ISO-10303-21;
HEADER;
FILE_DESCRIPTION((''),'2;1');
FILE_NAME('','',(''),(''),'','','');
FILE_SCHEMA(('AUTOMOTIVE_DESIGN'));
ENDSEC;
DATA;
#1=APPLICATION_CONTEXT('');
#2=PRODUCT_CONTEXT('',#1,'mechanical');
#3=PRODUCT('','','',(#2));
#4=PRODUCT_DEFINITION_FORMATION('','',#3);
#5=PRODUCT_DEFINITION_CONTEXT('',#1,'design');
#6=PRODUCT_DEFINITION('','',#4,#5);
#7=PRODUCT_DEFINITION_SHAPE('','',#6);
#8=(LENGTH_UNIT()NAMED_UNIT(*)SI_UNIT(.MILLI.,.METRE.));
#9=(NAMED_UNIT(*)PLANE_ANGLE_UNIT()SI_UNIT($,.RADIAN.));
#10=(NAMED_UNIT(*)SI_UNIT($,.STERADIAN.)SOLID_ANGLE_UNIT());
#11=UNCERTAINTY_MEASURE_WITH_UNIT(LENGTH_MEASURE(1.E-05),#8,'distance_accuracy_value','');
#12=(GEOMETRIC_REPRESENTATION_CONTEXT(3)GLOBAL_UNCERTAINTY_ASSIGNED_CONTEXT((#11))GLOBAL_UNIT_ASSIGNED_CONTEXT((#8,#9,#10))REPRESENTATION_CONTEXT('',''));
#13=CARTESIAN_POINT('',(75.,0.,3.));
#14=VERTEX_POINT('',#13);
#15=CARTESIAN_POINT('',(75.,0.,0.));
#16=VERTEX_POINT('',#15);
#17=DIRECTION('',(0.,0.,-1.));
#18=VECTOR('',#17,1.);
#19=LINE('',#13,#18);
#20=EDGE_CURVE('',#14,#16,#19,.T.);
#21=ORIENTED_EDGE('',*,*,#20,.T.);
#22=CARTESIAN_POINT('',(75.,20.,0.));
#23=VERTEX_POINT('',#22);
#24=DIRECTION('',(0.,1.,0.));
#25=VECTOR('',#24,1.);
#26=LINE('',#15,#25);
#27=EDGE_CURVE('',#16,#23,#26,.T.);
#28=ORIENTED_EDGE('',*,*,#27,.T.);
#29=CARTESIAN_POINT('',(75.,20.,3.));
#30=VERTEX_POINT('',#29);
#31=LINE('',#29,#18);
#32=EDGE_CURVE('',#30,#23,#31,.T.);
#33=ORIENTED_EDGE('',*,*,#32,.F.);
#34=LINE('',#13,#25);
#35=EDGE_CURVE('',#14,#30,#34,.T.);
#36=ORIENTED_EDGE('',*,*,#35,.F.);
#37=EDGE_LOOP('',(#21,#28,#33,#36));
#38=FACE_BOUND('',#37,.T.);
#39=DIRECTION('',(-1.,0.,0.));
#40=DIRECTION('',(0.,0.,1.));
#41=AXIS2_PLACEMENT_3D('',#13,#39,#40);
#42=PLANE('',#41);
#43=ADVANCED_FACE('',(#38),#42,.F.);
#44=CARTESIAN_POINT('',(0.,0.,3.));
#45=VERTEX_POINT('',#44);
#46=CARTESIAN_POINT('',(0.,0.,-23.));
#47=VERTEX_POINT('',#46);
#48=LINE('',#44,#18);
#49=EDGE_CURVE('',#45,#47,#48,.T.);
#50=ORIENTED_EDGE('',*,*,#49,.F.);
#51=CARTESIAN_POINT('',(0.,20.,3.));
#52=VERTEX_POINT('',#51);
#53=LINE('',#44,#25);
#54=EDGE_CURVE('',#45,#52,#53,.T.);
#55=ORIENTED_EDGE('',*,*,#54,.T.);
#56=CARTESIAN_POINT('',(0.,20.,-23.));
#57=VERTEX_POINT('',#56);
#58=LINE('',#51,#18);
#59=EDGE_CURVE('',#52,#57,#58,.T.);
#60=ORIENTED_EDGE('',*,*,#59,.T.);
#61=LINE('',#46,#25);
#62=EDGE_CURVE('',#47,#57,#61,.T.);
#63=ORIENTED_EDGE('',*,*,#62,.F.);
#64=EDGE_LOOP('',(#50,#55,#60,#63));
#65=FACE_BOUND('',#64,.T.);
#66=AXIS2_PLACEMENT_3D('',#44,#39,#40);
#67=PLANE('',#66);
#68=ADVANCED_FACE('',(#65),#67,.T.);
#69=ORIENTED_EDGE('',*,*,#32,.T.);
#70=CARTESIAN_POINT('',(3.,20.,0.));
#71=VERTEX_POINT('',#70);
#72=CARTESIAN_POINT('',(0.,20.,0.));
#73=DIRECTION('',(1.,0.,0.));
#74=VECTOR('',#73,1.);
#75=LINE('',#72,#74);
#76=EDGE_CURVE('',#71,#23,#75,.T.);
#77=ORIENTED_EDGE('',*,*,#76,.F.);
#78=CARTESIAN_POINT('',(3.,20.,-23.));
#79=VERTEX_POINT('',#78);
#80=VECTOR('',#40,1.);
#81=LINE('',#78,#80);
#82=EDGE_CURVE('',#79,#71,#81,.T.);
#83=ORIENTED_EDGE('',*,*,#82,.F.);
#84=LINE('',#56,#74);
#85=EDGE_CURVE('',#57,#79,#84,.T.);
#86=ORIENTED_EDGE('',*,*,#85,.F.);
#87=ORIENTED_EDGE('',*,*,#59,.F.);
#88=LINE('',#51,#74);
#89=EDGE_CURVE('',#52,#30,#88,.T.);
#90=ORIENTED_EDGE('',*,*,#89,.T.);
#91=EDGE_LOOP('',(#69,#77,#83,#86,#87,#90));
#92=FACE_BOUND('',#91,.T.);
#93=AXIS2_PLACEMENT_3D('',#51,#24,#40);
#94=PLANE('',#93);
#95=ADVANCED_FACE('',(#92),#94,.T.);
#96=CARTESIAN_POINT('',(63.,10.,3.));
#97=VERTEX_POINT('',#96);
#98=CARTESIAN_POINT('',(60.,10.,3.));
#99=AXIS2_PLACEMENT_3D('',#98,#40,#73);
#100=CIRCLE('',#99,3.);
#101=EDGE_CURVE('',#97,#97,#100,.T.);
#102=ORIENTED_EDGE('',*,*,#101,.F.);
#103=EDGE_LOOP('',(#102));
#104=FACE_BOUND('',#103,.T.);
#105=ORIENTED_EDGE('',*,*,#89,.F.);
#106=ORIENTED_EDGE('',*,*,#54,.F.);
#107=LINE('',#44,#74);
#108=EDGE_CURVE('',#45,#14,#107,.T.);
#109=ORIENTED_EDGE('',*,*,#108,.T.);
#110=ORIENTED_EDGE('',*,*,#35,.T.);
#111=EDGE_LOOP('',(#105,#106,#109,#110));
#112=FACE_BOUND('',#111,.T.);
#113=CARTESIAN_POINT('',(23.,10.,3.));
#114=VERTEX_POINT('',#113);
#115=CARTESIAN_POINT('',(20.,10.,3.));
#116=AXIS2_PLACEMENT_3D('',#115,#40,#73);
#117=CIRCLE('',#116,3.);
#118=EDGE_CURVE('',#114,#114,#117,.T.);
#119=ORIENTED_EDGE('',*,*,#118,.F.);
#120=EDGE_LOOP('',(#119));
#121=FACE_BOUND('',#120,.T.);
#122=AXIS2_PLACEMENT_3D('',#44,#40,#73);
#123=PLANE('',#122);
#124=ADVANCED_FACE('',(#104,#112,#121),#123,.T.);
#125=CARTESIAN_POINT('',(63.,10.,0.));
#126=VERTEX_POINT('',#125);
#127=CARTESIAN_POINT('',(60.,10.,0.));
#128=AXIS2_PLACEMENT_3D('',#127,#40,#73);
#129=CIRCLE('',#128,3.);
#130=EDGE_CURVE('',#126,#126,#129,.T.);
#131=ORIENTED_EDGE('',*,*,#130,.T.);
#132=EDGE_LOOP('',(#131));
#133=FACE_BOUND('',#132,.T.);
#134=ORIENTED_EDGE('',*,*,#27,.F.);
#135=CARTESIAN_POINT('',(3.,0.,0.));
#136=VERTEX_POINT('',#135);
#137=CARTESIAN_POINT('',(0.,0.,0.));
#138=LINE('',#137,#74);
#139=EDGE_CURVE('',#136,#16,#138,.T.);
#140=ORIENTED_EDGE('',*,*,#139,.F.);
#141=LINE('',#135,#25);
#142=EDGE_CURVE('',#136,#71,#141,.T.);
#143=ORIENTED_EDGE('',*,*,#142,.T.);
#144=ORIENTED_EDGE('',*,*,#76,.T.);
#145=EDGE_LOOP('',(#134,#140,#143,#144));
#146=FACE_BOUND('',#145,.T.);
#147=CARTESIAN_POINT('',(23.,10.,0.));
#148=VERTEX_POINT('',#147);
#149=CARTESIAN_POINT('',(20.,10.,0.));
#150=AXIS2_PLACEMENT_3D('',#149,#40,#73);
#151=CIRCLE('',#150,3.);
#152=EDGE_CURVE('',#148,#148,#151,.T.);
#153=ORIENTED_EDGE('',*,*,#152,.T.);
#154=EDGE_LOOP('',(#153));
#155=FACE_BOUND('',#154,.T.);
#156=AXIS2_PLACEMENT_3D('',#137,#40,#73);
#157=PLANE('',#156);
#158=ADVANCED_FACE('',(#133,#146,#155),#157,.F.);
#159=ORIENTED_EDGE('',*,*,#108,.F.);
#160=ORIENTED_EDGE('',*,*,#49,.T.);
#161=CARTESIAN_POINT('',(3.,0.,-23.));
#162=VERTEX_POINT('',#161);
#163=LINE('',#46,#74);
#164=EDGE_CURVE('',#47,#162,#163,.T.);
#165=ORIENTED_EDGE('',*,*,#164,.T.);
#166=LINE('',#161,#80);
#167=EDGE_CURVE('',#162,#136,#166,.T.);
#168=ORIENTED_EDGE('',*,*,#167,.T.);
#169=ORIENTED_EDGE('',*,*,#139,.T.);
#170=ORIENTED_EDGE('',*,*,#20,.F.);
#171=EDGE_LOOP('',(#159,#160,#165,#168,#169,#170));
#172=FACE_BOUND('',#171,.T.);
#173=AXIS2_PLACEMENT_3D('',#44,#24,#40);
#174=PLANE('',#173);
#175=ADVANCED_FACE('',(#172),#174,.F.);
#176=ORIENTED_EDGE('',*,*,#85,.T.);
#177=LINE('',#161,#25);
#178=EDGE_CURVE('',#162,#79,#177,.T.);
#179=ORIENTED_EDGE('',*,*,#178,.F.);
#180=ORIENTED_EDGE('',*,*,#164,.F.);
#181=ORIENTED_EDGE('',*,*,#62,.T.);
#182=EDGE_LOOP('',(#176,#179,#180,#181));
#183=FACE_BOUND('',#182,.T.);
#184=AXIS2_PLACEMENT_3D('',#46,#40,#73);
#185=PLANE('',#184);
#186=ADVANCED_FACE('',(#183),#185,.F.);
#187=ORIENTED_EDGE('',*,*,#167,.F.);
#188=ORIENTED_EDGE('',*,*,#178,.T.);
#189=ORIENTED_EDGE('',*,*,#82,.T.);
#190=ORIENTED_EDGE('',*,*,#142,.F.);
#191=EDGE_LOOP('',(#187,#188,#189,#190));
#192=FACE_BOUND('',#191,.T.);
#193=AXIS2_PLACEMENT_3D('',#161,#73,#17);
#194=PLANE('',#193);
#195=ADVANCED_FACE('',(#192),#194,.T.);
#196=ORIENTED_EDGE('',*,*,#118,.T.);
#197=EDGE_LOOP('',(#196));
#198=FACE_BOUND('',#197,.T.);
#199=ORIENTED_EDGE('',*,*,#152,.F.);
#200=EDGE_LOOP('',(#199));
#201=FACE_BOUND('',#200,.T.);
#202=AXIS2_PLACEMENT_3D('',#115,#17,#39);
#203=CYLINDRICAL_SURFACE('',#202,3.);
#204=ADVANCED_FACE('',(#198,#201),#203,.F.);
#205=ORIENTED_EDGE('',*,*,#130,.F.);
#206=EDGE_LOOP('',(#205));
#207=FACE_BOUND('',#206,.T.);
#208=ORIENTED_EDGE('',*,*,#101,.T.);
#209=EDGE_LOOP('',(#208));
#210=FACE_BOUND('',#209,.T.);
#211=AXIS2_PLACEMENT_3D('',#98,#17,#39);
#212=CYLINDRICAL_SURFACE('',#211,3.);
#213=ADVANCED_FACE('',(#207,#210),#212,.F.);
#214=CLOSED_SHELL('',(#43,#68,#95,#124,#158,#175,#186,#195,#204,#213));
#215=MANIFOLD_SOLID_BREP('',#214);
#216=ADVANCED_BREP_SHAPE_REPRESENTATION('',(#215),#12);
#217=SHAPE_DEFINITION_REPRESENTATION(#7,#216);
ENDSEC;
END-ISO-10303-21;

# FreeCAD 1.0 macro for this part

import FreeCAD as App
import Part
import Sketcher
Q = App.Units.Quantity

doc = App.newDocument("Part")
body = doc.addObject("PartDesign::Body", "Body")

sketch1 = doc.addObject("Sketcher::SketchObject", "Sketch")
body.addObject(sketch1)
sketch1.AttachmentSupport = (doc.XY_Plane, [""])
sketch1.MapMode = "FlatFace"
sketch1.addGeometry([
    Part.LineSegment(App.Vector(0, 20, 0), App.Vector(0, 0, 0)),
    Part.LineSegment(App.Vector(0, 0, 0), App.Vector(75, 0, 0)),
    Part.LineSegment(App.Vector(75, 0, 0), App.Vector(75, 20, 0)),
    Part.LineSegment(App.Vector(75, 20, 0), App.Vector(0, 20, 0)),
    Part.Circle(App.Vector(20, 10, 0), App.Vector(0, 0, 1), 3),
    Part.Circle(App.Vector(60, 10, 0), App.Vector(0, 0, 1), 3),
], False)
sketch1.addConstraint([
    Sketcher.Constraint("Coincident", 0, 2, 1, 1),
    Sketcher.Constraint("Coincident", 1, 2, 2, 1),
    Sketcher.Constraint("Coincident", 2, 2, 3, 1),
    Sketcher.Constraint("Coincident", 3, 2, 0, 1),
    Sketcher.Constraint("Vertical", 0),
    Sketcher.Constraint("Horizontal", 1),
    Sketcher.Constraint("Vertical", 2),
    Sketcher.Constraint("Horizontal", 3),
    Sketcher.Constraint("Coincident", 0, 2, -1, 1),
    Sketcher.Constraint("Equal", 4, 5),
    Sketcher.Constraint("Horizontal", 4, 3, 5, 3),
    Sketcher.Constraint("Diameter", 4, Q("6 mm")),
    Sketcher.Constraint("DistanceX", 1, 1, 1, 2, Q("75 mm")),
    Sketcher.Constraint("DistanceY", 0, 2, 0, 1, Q("20 mm")),
    Sketcher.Constraint("DistanceX", -1, 1, 4, 3, Q("20 mm")),
    Sketcher.Constraint("DistanceY", -1, 1, 4, 3, Q("10 mm")),
    Sketcher.Constraint("DistanceX", -1, 1, 5, 3, Q("60 mm")),
])
pad1 = doc.addObject("PartDesign::Pad", "Pad")
body.addObject(pad1)
pad1.Profile = sketch1
pad1.Length = 3

sketch2 = doc.addObject("Sketcher::SketchObject", "Sketch001")
body.addObject(sketch2)
sketch2.AttachmentSupport = (doc.XY_Plane, [""])
sketch2.MapMode = "FlatFace"
sketch2.addGeometry([
    Part.LineSegment(App.Vector(0, 20, 0), App.Vector(0, 0, 0)),
    Part.LineSegment(App.Vector(0, 0, 0), App.Vector(3, 0, 0)),
    Part.LineSegment(App.Vector(3, 0, 0), App.Vector(3, 20, 0)),
    Part.LineSegment(App.Vector(3, 20, 0), App.Vector(0, 20, 0)),
], False)
sketch2.addConstraint([
    Sketcher.Constraint("Coincident", 0, 2, 1, 1),
    Sketcher.Constraint("Coincident", 1, 2, 2, 1),
    Sketcher.Constraint("Coincident", 2, 2, 3, 1),
    Sketcher.Constraint("Coincident", 3, 2, 0, 1),
    Sketcher.Constraint("Vertical", 0),
    Sketcher.Constraint("Horizontal", 1),
    Sketcher.Constraint("Vertical", 2),
    Sketcher.Constraint("Horizontal", 3),
    Sketcher.Constraint("Coincident", 0, 2, -1, 1),
    Sketcher.Constraint("DistanceX", 1, 1, 1, 2, Q("3 mm")),
    Sketcher.Constraint("DistanceY", 0, 2, 0, 1, Q("20 mm")),
])
pad2 = doc.addObject("PartDesign::Pad", "Pad001")
body.addObject(pad2)
pad2.Profile = sketch2
pad2.Length = 23
pad2.Reversed = True

doc.recompute()
